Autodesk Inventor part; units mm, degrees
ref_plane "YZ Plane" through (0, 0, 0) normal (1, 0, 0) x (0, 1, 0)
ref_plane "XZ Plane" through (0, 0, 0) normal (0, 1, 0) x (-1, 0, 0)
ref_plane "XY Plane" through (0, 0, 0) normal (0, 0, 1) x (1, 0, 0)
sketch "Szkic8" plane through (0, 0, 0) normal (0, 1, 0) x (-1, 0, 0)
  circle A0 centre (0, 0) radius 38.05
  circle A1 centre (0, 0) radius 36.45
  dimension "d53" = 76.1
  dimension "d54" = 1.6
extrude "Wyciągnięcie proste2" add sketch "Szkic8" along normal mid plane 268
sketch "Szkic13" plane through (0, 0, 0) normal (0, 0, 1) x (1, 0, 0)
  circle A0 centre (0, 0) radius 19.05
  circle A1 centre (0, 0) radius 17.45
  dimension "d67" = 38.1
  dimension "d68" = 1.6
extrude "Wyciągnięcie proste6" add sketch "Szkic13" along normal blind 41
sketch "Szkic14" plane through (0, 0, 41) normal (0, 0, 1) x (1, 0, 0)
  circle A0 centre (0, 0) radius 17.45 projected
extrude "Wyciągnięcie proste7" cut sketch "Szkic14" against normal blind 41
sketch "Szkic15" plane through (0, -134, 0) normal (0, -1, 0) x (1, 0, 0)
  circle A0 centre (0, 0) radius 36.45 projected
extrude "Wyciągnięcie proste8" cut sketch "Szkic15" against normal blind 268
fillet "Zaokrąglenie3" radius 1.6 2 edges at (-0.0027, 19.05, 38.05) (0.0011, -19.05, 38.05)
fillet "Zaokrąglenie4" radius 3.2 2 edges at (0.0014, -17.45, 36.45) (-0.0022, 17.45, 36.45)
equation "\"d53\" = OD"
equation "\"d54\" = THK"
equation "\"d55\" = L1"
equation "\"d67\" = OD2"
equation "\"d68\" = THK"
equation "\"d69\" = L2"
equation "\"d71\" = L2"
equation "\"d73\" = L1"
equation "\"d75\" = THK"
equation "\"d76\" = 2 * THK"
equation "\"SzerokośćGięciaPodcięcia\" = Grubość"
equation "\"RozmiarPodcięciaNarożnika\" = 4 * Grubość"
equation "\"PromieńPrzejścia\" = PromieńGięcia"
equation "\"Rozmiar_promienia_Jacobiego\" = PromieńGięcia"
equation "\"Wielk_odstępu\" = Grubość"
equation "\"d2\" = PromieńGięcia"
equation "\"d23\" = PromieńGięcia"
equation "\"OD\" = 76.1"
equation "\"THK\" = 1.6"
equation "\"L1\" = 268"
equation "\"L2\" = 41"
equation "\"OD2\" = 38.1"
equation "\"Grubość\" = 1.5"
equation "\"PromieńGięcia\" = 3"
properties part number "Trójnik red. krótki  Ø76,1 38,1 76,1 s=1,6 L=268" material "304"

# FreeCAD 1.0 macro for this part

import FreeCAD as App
import Part
import Sketcher

V = App.Vector
Q = App.Units.Quantity


def edges_at(feature, points):
    """Names of the edges that pass closest to the given points."""
    edges = feature.Shape.Edges
    near = lambda p: min(range(len(edges)), key=lambda i: edges[i].distToShape(Part.Vertex(*p))[0])
    return sorted({f"Edge{near(p) + 1}" for p in points})

doc = App.newDocument("Part")
body = doc.addObject("PartDesign::Body", "Body")

sketch1 = doc.addObject("Sketcher::SketchObject", "Sketch")
body.addObject(sketch1)
sketch1.AttachmentSupport = (doc.XZ_Plane, [""])
sketch1.MapMode = "FlatFace"
sketch1.addGeometry([
    Part.Circle(V(0, 0, 0), V(0, 0, 1), 38),
    Part.Circle(V(0, 0, 0), V(0, 0, 1), 36),
], False)
sketch1.addConstraint([
    Sketcher.Constraint("Coincident", 0, 3, -1, 1),
    Sketcher.Constraint("Coincident", 1, 3, -1, 1),
    Sketcher.Constraint("Diameter", 0, Q("76.1 mm")),
    Sketcher.Constraint("Diameter", 1, Q("72.9 mm")),
])
pad1 = doc.addObject("PartDesign::Pad", "Pad")
body.addObject(pad1)
pad1.Profile = sketch1
pad1.Length = 268
pad1.Midplane = True

sketch2 = doc.addObject("Sketcher::SketchObject", "Sketch001")
body.addObject(sketch2)
sketch2.AttachmentSupport = (doc.XY_Plane, [""])
sketch2.MapMode = "FlatFace"
sketch2.addGeometry([
    Part.Circle(V(0, 0, 0), V(0, 0, 1), 19),
    Part.Circle(V(0, 0, 0), V(0, 0, 1), 17),
], False)
sketch2.addConstraint([
    Sketcher.Constraint("Coincident", 0, 3, -1, 1),
    Sketcher.Constraint("Coincident", 1, 3, -1, 1),
    Sketcher.Constraint("Diameter", 0, Q("38.1 mm")),
    Sketcher.Constraint("Diameter", 1, Q("34.9 mm")),
])
pad2 = doc.addObject("PartDesign::Pad", "Pad001")
body.addObject(pad2)
pad2.Profile = sketch2
pad2.Length = 41

sketch3 = doc.addObject("Sketcher::SketchObject", "Sketch002")
body.addObject(sketch3)
sketch3.AttachmentSupport = (doc.XY_Plane, [""])
sketch3.MapMode = "FlatFace"
sketch3.AttachmentOffset = App.Placement(V(0, 0, 41), App.Rotation())
sketch3.addGeometry(Part.Circle(V(0, 0, 0), V(0, 0, 1), 17), False)
sketch3.addConstraint([
    Sketcher.Constraint("Coincident", 0, 3, -1, 1),
    Sketcher.Constraint("Diameter", 0, Q("34.9 mm")),
])
pocket1 = doc.addObject("PartDesign::Pocket", "Pocket")
body.addObject(pocket1)
pocket1.Profile = sketch3
pocket1.Length = 41

sketch4 = doc.addObject("Sketcher::SketchObject", "Sketch003")
body.addObject(sketch4)
sketch4.AttachmentSupport = (doc.XZ_Plane, [""])
sketch4.MapMode = "FlatFace"
sketch4.AttachmentOffset = App.Placement(V(0, 0, 134), App.Rotation())
sketch4.addGeometry(Part.Circle(V(0, 0, 0), V(0, 0, 1), 36), False)
sketch4.addConstraint([
    Sketcher.Constraint("Coincident", 0, 3, -1, 1),
    Sketcher.Constraint("Diameter", 0, Q("72.9 mm")),
])
pocket2 = doc.addObject("PartDesign::Pocket", "Pocket001")
body.addObject(pocket2)
pocket2.Profile = sketch4
pocket2.Length = 268
doc.recompute()

fillet = doc.addObject("PartDesign::Fillet", "Fillet")
body.addObject(fillet)
fillet.Base = (pocket2, edges_at(pocket2, [(-0.003, 19.05, 38.05), (0.001, -19.05, 38.05)]))
fillet.Radius = 1.6
doc.recompute()

fillet2 = doc.addObject("PartDesign::Fillet", "Fillet001")
body.addObject(fillet2)
fillet2.Base = (fillet, edges_at(fillet, [(0.001, -17.45, 36.45), (-0.002, 17.45, 36.45)]))
fillet2.Radius = 3.2

doc.recompute()
